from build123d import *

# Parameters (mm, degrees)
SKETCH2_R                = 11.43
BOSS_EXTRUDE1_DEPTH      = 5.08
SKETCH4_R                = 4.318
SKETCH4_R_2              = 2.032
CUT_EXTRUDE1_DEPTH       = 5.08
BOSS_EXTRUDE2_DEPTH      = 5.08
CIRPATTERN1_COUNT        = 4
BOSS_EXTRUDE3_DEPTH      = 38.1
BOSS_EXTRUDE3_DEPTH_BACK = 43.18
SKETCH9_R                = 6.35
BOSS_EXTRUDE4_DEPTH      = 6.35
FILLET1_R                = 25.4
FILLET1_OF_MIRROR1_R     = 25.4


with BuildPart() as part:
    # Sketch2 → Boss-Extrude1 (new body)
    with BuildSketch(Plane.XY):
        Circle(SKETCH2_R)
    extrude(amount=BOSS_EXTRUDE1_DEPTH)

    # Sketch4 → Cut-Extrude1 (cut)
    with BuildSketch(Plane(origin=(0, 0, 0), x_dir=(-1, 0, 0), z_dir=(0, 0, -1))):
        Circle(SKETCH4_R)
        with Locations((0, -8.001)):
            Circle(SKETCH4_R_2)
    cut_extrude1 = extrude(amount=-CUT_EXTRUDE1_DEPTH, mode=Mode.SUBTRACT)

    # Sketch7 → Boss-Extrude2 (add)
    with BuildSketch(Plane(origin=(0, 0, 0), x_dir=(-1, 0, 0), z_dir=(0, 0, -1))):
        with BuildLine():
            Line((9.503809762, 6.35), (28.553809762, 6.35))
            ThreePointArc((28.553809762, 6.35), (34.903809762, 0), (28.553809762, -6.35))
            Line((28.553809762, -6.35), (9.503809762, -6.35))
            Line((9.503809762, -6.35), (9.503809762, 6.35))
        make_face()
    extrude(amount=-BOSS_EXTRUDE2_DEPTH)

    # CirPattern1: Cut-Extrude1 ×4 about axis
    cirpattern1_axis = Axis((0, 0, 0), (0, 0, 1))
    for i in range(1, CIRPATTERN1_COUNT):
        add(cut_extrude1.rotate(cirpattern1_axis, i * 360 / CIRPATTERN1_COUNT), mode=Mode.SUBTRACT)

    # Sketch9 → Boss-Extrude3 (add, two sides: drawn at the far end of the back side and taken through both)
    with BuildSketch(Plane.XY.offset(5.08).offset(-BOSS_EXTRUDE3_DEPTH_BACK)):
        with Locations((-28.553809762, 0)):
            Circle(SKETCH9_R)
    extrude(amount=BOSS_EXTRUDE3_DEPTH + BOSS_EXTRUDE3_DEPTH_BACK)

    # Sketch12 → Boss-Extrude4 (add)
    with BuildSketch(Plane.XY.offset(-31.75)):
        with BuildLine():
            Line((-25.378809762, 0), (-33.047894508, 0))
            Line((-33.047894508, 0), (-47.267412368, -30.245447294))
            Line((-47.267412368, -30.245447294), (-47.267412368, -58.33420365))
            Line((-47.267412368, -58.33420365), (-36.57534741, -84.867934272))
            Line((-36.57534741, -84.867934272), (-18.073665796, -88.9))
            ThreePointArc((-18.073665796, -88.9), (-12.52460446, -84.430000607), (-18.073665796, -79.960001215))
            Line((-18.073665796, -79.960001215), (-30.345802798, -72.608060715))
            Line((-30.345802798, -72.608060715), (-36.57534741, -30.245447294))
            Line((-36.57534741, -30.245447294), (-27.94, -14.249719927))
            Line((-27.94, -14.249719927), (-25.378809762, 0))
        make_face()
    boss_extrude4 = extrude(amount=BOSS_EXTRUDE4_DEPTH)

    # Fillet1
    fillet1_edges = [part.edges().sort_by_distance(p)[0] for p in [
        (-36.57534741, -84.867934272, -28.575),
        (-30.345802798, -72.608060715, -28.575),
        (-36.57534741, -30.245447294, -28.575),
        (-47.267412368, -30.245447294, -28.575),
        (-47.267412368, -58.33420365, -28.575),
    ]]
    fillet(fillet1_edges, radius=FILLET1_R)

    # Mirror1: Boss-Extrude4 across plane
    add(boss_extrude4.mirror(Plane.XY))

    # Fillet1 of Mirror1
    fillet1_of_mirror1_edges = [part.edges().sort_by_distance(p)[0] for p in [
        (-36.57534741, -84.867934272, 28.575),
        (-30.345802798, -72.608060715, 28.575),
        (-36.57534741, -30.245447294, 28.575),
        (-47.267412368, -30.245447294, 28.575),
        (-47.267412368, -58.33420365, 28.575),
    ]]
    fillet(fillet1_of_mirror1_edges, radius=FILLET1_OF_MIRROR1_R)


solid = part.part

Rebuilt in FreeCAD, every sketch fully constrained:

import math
import FreeCAD as App
import Part
import Sketcher

V = App.Vector
Q = App.Units.Quantity


def edges_at(feature, points):
    """Names of the edges that pass closest to the given points."""
    edges = feature.Shape.Edges
    near = lambda p: min(range(len(edges)), key=lambda i: edges[i].distToShape(Part.Vertex(*p))[0])
    return sorted({f"Edge{near(p) + 1}" for p in points})

doc = App.newDocument("Part")
body = doc.addObject("PartDesign::Body", "Body")

# Sketch on XY plane
sketch1 = body.newObject("Sketcher::SketchObject", "Sketch")
sketch1.AttachmentSupport = (doc.getObject("XY_Plane"), [""])
sketch1.MapMode = "FlatFace"
sketch1.addGeometry(Part.Circle(V(0, 0, 0), V(0, 0, 1), 11.43), False)
sketch1.addConstraint(Sketcher.Constraint("Coincident", 0, 3, -1, 1))
sketch1.addConstraint(Sketcher.Constraint("Diameter", 0, Q("0.9 in")))
pad1 = body.newObject("PartDesign::Pad", "Pad")
pad1.Profile = sketch1
pad1.Length = Q("0.2 in")

# Sketch on XY plane
sketch2 = body.newObject("Sketcher::SketchObject", "Sketch001")
sketch2.AttachmentSupport = (doc.getObject("XY_Plane"), [""])
sketch2.MapMode = "FlatFace"
sketch2.addGeometry(Part.Circle(V(0, 0, 0), V(0, 0, 1), 4.318), False)
sketch2.addGeometry(Part.Circle(V(0, -8.001, 0), V(0, 0, 1), 2.032), False)
sketch2.addConstraint(Sketcher.Constraint("Coincident", 0, 3, -1, 1))
sketch2.addConstraint(Sketcher.Constraint("PointOnObject", 1, 3, -2))
sketch2.addConstraint(Sketcher.Constraint("Diameter", 0, Q("0.34 in")))
sketch2.addConstraint(Sketcher.Constraint("Diameter", 1, Q("0.16 in")))
sketch2.addConstraint(Sketcher.Constraint("DistanceY", 1, 3, -1, 1, Q("0.315 in")))
pocket1 = body.newObject("PartDesign::Pocket", "Pocket")
pocket1.Profile = sketch2
pocket1.Length = Q("0.2 in")
pocket1.Reversed = True

# Sketch on XY plane
sketch3 = body.newObject("Sketcher::SketchObject", "Sketch002")
sketch3.AttachmentSupport = (doc.getObject("XY_Plane"), [""])
sketch3.MapMode = "FlatFace"
sketch3.addGeometry(Part.LineSegment(V(-28.55381, 6.35, 0), V(-9.50381, 6.35, 0)), False)
sketch3.addGeometry(Part.LineSegment(V(-9.50381, 6.35, 0), V(-9.50381, -6.35, 0)), False)
sketch3.addGeometry(Part.LineSegment(V(-9.50381, -6.35, 0), V(-28.55381, -6.35, 0)), False)
sketch3.addGeometry(Part.ArcOfCircle(Part.Circle(V(-28.55381, 0, 0), V(0, 0, 1), 6.35), math.radians(90), math.radians(270)), False)
sketch3.addConstraint(Sketcher.Constraint("Coincident", 0, 2, 1, 1))
sketch3.addConstraint(Sketcher.Constraint("Coincident", 1, 2, 2, 1))
sketch3.addConstraint(Sketcher.Constraint("Tangent", 2, 2, 3, 2))
sketch3.addConstraint(Sketcher.Constraint("Tangent", 3, 1, 0, 1))
sketch3.addConstraint(Sketcher.Constraint("Horizontal", 0))
sketch3.addConstraint(Sketcher.Constraint("Vertical", 1))
sketch3.addConstraint(Sketcher.Constraint("Horizontal", 2))
sketch3.addConstraint(Sketcher.Constraint("PointOnObject", 3, 3, -1))
sketch3.addConstraint(Sketcher.Constraint("Radius", 3, Q("0.25 in")))
sketch3.addConstraint(Sketcher.Constraint("DistanceX", 0, 1, 0, 2, Q("0.75 in")))
sketch3.addConstraint(Sketcher.Constraint("DistanceX", 3, 3, -1, 1, 28.55381))
pad2 = body.newObject("PartDesign::Pad", "Pad001")
pad2.Profile = sketch3
pad2.Length = Q("0.2 in")
doc.recompute()

polarpattern = body.newObject("PartDesign::PolarPattern", "PolarPattern")
polarpattern.Originals = [pocket1]
polarpattern.Axis = (doc.getObject("Z_Axis"), [""])
polarpattern.Angle = 360
polarpattern.Occurrences = 4
body.Tip = polarpattern

# Sketch on XY plane
sketch4 = body.newObject("Sketcher::SketchObject", "Sketch003")
sketch4.AttachmentSupport = (doc.getObject("XY_Plane"), [""])
sketch4.MapMode = "FlatFace"
sketch4.AttachmentOffset = App.Placement(V(0, 0, 0.2 * 25.4), App.Rotation())
sketch4.addGeometry(Part.Circle(V(-28.55381, 0, 0), V(0, 0, 1), 6.35), False)
sketch4.addConstraint(Sketcher.Constraint("PointOnObject", 0, 3, -1))
sketch4.addConstraint(Sketcher.Constraint("Diameter", 0, Q("0.5 in")))
sketch4.addConstraint(Sketcher.Constraint("DistanceX", 0, 3, -1, 1, 28.55381))
pad3 = body.newObject("PartDesign::Pad", "Pad002")
pad3.Profile = sketch4
pad3.Type = "TwoLengths"
pad3.Length = Q("1.5 in")
pad3.Length2 = Q("1.7 in")

# Sketch on XY plane
sketch5 = body.newObject("Sketcher::SketchObject", "Sketch004")
sketch5.AttachmentSupport = (doc.getObject("XY_Plane"), [""])
sketch5.MapMode = "FlatFace"
sketch5.AttachmentOffset = App.Placement(V(0, 0, -1.25 * 25.4), App.Rotation())
sketch5.addGeometry(Part.LineSegment(V(-25.37881, 0, 0), V(-33.047895, 0, 0)), False)
sketch5.addGeometry(Part.LineSegment(V(-33.047895, 0, 0), V(-47.267412, -30.245447, 0)), False)
sketch5.addGeometry(Part.LineSegment(V(-47.267412, -30.245447, 0), V(-47.267412, -58.334204, 0)), False)
sketch5.addGeometry(Part.LineSegment(V(-47.267412, -58.334204, 0), V(-36.575347, -84.867934, 0)), False)
sketch5.addGeometry(Part.LineSegment(V(-36.575347, -84.867934, 0), V(-18.073666, -88.9, 0)), False)
sketch5.addGeometry(Part.ArcOfCircle(Part.Circle(V(-17.09952, -84.430001, 0), V(0, 0, 1), 4.574916), math.radians(-102.294226), math.radians(102.294226)), False)
sketch5.addGeometry(Part.LineSegment(V(-18.073666, -79.960001, 0), V(-30.345803, -72.608061, 0)), False)
sketch5.addGeometry(Part.LineSegment(V(-30.345803, -72.608061, 0), V(-36.575347, -30.245447, 0)), False)
sketch5.addGeometry(Part.LineSegment(V(-36.575347, -30.245447, 0), V(-27.94, -14.24972, 0)), False)
sketch5.addGeometry(Part.LineSegment(V(-27.94, -14.24972, 0), V(-25.37881, 0, 0)), False)
sketch5.addConstraint(Sketcher.Constraint("Coincident", 0, 2, 1, 1))
sketch5.addConstraint(Sketcher.Constraint("Coincident", 1, 2, 2, 1))
sketch5.addConstraint(Sketcher.Constraint("Coincident", 2, 2, 3, 1))
sketch5.addConstraint(Sketcher.Constraint("Coincident", 3, 2, 4, 1))
sketch5.addConstraint(Sketcher.Constraint("Coincident", 4, 2, 5, 1))
sketch5.addConstraint(Sketcher.Constraint("Coincident", 5, 2, 6, 1))
sketch5.addConstraint(Sketcher.Constraint("Coincident", 6, 2, 7, 1))
sketch5.addConstraint(Sketcher.Constraint("Coincident", 7, 2, 8, 1))
sketch5.addConstraint(Sketcher.Constraint("Coincident", 8, 2, 9, 1))
sketch5.addConstraint(Sketcher.Constraint("Coincident", 9, 2, 0, 1))
sketch5.addConstraint(Sketcher.Constraint("Horizontal", 0))
sketch5.addConstraint(Sketcher.Constraint("Vertical", 2))
sketch5.addConstraint(Sketcher.Constraint("PointOnObject", 0, 2, -1))
sketch5.addConstraint(Sketcher.Constraint("DistanceY", 4, 2, -1, 1, Q("3.5 in")))
sketch5.addConstraint(Sketcher.Constraint("DistanceX", 8, 2, -1, 1, Q("1.1 in")))
sketch5.addConstraint(Sketcher.Constraint("Radius", 5, 4.574916))
sketch5.addConstraint(Sketcher.Constraint("Distance", 7, 42.8182))
sketch5.addConstraint(Sketcher.Constraint("DistanceY", 5, 3, -1, 1, 84.430001))
sketch5.addConstraint(Sketcher.Constraint("DistanceY", 5, 2, -1, 1, 79.960001))
sketch5.addConstraint(Sketcher.Constraint("Distance", 4, 18.935939))
sketch5.addConstraint(Sketcher.Constraint("Distance", 9, 14.47806))
sketch5.addConstraint(Sketcher.Constraint("DistanceX", 0, 2, 0, 1, 7.669085))
sketch5.addConstraint(Sketcher.Constraint("DistanceY", 2, 2, 2, 1, 28.088756))
sketch5.addConstraint(Sketcher.Constraint("DistanceX", 5, 3, -1, 1, 17.09952))
sketch5.addConstraint(Sketcher.Constraint("DistanceY", 6, 2, -1, 1, 72.608061))
sketch5.addConstraint(Sketcher.Constraint("DistanceY", 8, 2, -1, 1, 14.24972))
sketch5.addConstraint(Sketcher.Constraint("DistanceY", 3, 2, 2, 2, 26.533731))
sketch5.addConstraint(Sketcher.Constraint("DistanceX", 3, 2, 4, 2, 18.501682))
sketch5.addConstraint(Sketcher.Constraint("DistanceX", 2, 2, 6, 2, 16.92161))
sketch5.addConstraint(Sketcher.Constraint("DistanceX", 7, 2, 5, 2, 18.501682))
sketch5.addConstraint(Sketcher.Constraint("Distance", 1, 33.421277))
pad4 = body.newObject("PartDesign::Pad", "Pad003")
pad4.Profile = sketch5
pad4.Length = Q("0.25 in")
doc.recompute()

fillet = body.newObject("PartDesign::Fillet", "Fillet")
fillet.Base = (pad4, edges_at(pad4, [
    (-36.575, -84.868, -28.575),
    (-30.346, -72.608, -28.575),
    (-36.575, -30.245, -28.575),
    (-47.267, -30.245, -28.575),
    (-47.267, -58.334, -28.575),
]))
fillet.Radius = Q("1 in")
doc.recompute()

mirrored = body.newObject("PartDesign::Mirrored", "Mirrored")
mirrored.Originals = [pad4]
mirrored.MirrorPlane = (doc.getObject("XY_Plane"), [""])
body.Tip = mirrored
doc.recompute()

fillet2 = body.newObject("PartDesign::Fillet", "Fillet001")
fillet2.Base = (mirrored, edges_at(mirrored, [
    (-36.575, -84.868, 28.575),
    (-30.346, -72.608, 28.575),
    (-36.575, -30.245, 28.575),
    (-47.267, -30.245, 28.575),
    (-47.267, -58.334, 28.575),
]))
fillet2.Radius = Q("1 in")

doc.recompute()
